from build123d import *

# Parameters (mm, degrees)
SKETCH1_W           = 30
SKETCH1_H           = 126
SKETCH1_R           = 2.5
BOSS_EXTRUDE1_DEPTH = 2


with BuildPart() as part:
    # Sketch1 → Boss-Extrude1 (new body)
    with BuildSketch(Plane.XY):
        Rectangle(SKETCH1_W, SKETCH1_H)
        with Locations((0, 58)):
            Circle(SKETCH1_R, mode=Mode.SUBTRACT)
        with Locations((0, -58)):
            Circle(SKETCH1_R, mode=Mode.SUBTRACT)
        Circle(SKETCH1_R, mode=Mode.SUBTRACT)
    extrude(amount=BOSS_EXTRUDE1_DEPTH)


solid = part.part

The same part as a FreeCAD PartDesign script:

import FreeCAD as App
import Part
import Sketcher

V = App.Vector
Q = App.Units.Quantity

doc = App.newDocument("Part")
body = doc.addObject("PartDesign::Body", "Body")

sketch1 = doc.addObject("Sketcher::SketchObject", "Sketch")
body.addObject(sketch1)
sketch1.AttachmentSupport = (doc.XY_Plane, [""])
sketch1.MapMode = "FlatFace"
sketch1.addGeometry([
    Part.LineSegment(V(-15, 63, 0), V(-15, -63, 0)),
    Part.LineSegment(V(-15, -63, 0), V(15, -63, 0)),
    Part.LineSegment(V(15, -63, 0), V(15, 63, 0)),
    Part.LineSegment(V(15, 63, 0), V(-15, 63, 0)),
    Part.Circle(V(0, -58, 0), V(0, 0, 1), 2.5),
    Part.Circle(V(0, 0, 0), V(0, 0, 1), 2.5),
    Part.Circle(V(0, 58, 0), V(0, 0, 1), 2.5),
], False)
sketch1.addConstraint([
    Sketcher.Constraint("Coincident", 0, 2, 1, 1),
    Sketcher.Constraint("Coincident", 1, 2, 2, 1),
    Sketcher.Constraint("Coincident", 2, 2, 3, 1),
    Sketcher.Constraint("Coincident", 3, 2, 0, 1),
    Sketcher.Constraint("Vertical", 0),
    Sketcher.Constraint("Horizontal", 1),
    Sketcher.Constraint("Vertical", 2),
    Sketcher.Constraint("Horizontal", 3),
    Sketcher.Constraint("Coincident", 5, 3, -1, 1),
    Sketcher.Constraint("Equal", 4, 5),
    Sketcher.Constraint("Equal", 5, 6),
    Sketcher.Constraint("Symmetric", 4, 3, 6, 3, -1, 1),
    Sketcher.Constraint("Symmetric", 0, 2, 2, 2, -1, 1),
    Sketcher.Constraint("PointOnObject", 4, 3, -2),
    Sketcher.Constraint("Diameter", 4, Q("5 mm")),
    Sketcher.Constraint("DistanceX", 1, 1, 1, 2, Q("30 mm")),
    Sketcher.Constraint("DistanceY", 0, 2, 0, 1, Q("126 mm")),
    Sketcher.Constraint("DistanceY", 4, 3, -1, 1, Q("58 mm")),
])
pad1 = doc.addObject("PartDesign::Pad", "Pad")
body.addObject(pad1)
pad1.Profile = sketch1
pad1.Length = 2

doc.recompute()
